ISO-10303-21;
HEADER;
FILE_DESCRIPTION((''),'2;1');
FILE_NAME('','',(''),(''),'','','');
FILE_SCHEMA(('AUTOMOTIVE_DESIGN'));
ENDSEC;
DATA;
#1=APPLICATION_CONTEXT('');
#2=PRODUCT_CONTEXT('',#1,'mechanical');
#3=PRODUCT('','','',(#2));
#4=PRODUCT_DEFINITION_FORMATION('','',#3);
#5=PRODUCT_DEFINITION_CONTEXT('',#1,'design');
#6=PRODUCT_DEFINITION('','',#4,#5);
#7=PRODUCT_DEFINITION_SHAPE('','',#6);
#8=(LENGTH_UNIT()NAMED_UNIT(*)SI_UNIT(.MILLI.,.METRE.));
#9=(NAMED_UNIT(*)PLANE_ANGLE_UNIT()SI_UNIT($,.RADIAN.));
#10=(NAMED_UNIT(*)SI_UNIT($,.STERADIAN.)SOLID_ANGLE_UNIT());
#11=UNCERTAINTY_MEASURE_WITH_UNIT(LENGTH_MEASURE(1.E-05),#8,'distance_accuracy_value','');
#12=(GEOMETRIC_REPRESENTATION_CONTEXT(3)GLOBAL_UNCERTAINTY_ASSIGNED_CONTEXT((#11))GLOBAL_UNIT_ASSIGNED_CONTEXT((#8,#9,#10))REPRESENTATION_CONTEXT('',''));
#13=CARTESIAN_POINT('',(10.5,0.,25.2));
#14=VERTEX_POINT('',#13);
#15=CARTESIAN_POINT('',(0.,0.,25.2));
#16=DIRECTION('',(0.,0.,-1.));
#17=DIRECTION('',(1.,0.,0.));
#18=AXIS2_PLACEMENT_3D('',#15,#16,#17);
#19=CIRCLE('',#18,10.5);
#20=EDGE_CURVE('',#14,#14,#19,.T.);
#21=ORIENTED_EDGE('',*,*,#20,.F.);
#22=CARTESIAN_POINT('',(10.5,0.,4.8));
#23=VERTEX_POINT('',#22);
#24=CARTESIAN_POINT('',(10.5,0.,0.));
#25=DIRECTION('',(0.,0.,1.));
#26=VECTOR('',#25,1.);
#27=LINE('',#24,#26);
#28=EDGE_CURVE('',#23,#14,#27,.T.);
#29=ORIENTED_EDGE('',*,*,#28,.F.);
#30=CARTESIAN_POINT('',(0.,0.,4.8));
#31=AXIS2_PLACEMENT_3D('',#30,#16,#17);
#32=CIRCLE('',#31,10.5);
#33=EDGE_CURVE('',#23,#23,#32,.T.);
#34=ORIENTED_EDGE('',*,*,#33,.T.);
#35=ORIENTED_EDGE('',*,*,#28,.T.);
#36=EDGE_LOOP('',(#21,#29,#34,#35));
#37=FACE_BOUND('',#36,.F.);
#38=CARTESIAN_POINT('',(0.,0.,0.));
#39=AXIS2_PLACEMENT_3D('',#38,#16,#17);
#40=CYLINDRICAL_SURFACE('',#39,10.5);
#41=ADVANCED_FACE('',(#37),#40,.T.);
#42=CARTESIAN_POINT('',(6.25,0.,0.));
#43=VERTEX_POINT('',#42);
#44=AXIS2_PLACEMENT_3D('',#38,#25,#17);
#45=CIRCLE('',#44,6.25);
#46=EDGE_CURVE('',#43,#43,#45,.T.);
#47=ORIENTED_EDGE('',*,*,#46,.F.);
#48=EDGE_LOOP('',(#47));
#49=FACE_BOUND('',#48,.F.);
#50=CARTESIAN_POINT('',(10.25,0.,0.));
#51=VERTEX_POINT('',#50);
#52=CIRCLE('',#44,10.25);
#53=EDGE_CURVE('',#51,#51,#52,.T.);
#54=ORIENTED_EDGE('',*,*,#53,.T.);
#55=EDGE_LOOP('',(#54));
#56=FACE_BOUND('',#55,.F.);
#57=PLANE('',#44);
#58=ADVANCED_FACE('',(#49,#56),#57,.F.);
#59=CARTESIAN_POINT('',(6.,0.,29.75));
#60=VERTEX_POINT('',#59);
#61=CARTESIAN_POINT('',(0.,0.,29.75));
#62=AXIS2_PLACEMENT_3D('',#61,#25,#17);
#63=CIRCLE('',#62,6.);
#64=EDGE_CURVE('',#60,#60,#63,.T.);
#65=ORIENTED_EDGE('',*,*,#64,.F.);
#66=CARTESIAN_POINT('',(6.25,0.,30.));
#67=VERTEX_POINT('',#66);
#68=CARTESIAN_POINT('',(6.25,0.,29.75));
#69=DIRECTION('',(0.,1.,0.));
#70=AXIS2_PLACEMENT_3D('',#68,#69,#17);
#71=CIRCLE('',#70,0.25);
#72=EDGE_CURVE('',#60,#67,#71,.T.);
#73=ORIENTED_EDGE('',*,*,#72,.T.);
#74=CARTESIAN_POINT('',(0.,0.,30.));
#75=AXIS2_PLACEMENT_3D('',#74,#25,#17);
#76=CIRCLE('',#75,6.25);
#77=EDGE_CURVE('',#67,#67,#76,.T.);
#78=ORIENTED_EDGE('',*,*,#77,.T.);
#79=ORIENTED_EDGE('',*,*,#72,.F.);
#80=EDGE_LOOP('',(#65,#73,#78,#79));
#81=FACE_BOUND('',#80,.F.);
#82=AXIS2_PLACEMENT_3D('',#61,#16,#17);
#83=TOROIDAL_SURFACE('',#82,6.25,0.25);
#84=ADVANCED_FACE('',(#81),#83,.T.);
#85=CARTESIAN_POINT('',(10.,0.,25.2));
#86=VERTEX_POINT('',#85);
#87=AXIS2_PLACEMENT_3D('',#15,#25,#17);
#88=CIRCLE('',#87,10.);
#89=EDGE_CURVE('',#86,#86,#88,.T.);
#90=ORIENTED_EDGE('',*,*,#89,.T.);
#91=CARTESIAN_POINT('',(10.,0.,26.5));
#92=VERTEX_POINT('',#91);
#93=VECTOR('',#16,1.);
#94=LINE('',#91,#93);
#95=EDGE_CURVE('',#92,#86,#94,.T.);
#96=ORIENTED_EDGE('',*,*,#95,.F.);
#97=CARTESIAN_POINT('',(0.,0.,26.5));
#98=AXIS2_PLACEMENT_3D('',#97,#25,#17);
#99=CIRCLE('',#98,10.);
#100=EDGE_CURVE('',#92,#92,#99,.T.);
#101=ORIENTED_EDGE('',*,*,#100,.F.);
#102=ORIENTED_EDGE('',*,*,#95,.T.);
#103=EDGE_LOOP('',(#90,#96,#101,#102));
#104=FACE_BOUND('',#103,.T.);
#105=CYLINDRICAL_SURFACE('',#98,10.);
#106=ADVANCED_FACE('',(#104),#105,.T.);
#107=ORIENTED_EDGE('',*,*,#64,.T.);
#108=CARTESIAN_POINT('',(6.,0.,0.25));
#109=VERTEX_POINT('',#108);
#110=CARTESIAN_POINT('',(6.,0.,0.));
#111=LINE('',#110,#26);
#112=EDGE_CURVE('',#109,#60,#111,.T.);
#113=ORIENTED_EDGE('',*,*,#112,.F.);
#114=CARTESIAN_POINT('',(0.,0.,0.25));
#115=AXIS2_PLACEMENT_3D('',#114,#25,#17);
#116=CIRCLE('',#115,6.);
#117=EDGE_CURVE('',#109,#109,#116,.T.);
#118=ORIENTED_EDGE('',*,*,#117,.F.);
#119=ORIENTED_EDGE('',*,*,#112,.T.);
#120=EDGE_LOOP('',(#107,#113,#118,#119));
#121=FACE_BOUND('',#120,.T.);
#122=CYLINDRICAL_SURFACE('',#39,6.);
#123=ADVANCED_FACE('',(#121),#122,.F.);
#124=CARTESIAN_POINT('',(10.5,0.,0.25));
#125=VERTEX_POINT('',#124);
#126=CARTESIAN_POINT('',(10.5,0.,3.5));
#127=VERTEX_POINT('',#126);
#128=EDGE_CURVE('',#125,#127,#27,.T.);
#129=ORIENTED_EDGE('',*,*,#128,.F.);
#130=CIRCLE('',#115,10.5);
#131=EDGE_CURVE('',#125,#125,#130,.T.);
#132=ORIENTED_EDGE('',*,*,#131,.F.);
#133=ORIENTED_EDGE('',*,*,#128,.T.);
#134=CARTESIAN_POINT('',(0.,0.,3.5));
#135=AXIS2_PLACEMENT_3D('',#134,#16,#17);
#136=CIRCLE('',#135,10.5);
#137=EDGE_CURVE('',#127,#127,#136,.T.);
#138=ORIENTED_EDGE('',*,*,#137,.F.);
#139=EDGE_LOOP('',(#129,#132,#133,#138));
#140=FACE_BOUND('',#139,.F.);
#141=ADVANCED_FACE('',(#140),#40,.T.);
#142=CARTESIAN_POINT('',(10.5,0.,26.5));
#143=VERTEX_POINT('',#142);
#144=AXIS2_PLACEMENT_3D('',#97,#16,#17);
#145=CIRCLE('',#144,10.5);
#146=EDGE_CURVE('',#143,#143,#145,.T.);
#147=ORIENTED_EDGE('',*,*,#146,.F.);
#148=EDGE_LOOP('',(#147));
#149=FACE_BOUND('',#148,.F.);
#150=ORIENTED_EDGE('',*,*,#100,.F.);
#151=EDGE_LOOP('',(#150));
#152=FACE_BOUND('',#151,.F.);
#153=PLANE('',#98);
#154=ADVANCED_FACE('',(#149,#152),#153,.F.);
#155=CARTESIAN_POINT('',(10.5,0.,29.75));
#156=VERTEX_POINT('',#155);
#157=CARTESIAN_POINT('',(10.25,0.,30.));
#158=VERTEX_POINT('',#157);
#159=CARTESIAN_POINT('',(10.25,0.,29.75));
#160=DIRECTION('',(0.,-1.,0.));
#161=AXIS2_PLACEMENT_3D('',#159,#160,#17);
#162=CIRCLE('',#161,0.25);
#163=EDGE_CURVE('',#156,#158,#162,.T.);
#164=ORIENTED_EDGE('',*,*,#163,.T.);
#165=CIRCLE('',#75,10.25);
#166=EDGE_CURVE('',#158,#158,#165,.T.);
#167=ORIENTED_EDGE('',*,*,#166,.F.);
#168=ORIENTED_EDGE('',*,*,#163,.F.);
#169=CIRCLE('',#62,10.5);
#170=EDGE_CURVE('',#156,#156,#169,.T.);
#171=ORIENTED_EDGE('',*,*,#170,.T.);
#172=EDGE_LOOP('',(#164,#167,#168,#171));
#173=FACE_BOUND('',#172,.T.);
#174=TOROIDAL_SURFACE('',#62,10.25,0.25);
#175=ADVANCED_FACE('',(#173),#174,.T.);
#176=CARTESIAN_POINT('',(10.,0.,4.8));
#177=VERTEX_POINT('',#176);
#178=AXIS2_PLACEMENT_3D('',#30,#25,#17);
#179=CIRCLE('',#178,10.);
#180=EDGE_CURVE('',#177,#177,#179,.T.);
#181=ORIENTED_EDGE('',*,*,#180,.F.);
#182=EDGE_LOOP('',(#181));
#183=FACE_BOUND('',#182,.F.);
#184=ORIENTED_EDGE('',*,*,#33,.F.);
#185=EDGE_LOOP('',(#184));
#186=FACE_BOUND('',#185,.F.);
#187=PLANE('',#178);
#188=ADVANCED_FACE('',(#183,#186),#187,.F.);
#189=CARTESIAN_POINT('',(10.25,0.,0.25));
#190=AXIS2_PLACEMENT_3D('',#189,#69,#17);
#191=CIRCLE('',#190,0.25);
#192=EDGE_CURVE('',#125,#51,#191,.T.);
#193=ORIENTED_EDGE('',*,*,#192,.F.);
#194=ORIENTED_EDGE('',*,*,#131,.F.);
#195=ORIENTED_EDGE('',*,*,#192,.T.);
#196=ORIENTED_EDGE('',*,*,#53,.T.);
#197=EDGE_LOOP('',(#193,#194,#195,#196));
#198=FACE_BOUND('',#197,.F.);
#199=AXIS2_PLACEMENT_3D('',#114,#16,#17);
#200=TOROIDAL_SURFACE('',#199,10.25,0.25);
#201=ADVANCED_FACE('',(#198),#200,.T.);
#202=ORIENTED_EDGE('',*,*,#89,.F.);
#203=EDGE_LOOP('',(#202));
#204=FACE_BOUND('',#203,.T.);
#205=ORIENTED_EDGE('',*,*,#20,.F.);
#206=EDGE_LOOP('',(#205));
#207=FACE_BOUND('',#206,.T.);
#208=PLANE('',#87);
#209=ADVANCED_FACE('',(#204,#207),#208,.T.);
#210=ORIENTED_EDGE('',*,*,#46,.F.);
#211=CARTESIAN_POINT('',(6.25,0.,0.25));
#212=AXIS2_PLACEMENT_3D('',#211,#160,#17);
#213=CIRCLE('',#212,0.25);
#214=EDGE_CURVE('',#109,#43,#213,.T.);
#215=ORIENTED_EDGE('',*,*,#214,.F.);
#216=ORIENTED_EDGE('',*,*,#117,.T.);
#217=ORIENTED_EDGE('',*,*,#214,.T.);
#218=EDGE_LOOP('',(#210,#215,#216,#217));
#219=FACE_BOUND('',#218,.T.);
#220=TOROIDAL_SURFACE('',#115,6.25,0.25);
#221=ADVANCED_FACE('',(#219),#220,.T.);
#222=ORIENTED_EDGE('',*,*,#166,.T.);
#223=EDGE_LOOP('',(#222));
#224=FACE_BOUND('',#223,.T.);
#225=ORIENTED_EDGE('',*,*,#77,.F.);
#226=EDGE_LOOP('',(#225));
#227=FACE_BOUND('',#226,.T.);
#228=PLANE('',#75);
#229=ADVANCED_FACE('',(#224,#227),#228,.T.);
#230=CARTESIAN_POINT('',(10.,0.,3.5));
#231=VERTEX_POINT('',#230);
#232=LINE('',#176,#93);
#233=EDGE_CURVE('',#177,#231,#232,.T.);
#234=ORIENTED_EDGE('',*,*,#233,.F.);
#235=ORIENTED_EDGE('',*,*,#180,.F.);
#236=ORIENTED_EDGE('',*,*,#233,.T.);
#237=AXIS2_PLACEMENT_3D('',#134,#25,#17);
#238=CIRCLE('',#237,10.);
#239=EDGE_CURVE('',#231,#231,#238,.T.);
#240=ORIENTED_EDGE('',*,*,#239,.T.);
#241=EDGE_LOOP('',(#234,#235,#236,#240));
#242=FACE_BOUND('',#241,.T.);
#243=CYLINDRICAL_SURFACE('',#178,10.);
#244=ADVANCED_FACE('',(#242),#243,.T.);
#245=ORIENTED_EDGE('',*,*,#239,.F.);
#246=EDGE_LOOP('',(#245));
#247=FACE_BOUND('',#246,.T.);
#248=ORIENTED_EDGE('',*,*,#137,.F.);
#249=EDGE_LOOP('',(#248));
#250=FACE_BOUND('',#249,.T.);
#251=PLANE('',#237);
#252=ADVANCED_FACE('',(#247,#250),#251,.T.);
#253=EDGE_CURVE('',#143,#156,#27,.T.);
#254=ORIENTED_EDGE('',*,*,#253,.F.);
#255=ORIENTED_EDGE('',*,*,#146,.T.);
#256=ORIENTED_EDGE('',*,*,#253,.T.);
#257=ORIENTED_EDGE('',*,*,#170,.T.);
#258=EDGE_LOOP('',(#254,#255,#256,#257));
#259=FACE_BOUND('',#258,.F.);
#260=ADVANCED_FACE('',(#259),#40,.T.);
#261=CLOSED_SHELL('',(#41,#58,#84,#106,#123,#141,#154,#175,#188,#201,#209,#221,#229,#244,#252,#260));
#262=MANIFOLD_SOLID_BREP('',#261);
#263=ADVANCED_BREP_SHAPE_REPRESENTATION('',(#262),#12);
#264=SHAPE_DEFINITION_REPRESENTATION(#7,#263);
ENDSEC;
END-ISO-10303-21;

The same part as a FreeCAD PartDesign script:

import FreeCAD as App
import Part
import Sketcher


def edges_at(feature, points):
    """Names of the edges that pass closest to the given points."""
    edges = feature.Shape.Edges
    near = lambda p: min(range(len(edges)), key=lambda i: edges[i].distToShape(Part.Vertex(*p))[0])
    return sorted({f"Edge{near(p) + 1}" for p in points})

doc = App.newDocument("Part")
params = doc.addObject("Spreadsheet::Sheet", "Params")
for row, (alias, value) in enumerate([
    ("sketch1_diameter", "21 mm"),
    ("sketch1_diameter2", "12 mm"),
    ("pad1_length", "30 mm"),
    ("fillet_radius", "0.25 mm"),
    ("sketch2_diameter", "32 mm"),
    ("sketch2_diameter2", "20 mm"),
    ("pocket1_length", "1.3 mm"),
    ("sketch3_diameter", "32 mm"),
    ("sketch3_diameter2", "20 mm"),
    ("pocket2_length", "1.3 mm"),
], start=1):
    params.set(f"A{row}", alias)
    params.set(f"B{row}", "=" + value)
    params.setAlias(f"B{row}", alias)

body = doc.addObject("PartDesign::Body", "Body")

sketch1 = body.newObject("Sketcher::SketchObject", "Sketch")
sketch1.AttachmentSupport = (doc.getObject("XY_Plane"), [""])
sketch1.MapMode = "FlatFace"
sketch1.addGeometry([
    Part.Circle(App.Vector(0, 0, 0), App.Vector(0, 0, 1), 10),
    Part.Circle(App.Vector(0, 0, 0), App.Vector(0, 0, 1), 6),
], False)
sketch1.addConstraint([
    Sketcher.Constraint("Coincident", 0, 3, -1, 1),
    Sketcher.Constraint("Coincident", 1, 3, -1, 1),
    Sketcher.Constraint("Diameter", 0, 21.0),
    Sketcher.Constraint("Diameter", 1, 12.0),
])
sketch1.setExpression("Constraints[2]", "Params.sketch1_diameter")
sketch1.setExpression("Constraints[3]", "Params.sketch1_diameter2")
pad1 = body.newObject("PartDesign::Pad", "Pad")
pad1.Profile = sketch1
pad1.setExpression("Length", "Params.pad1_length")
doc.recompute()

fillet = body.newObject("PartDesign::Fillet", "Fillet")
fillet.Base = (pad1, edges_at(pad1, [
    (-10.5, 0, 30),
    (-6, 0, 30),
    (-10.5, 0, 0),
    (-6, 0, 0),
]))
fillet.setExpression("Radius", "Params.fillet_radius")

sketch2 = body.newObject("Sketcher::SketchObject", "Sketch001")
sketch2.AttachmentSupport = (doc.getObject("XY_Plane"), [""])
sketch2.MapMode = "FlatFace"
sketch2.AttachmentOffset = App.Placement(App.Vector(0, 0, 26.5), App.Rotation())
sketch2.addGeometry([
    Part.Circle(App.Vector(0, 0, 0), App.Vector(0, 0, 1), 16),
    Part.Circle(App.Vector(0, 0, 0), App.Vector(0, 0, 1), 10),
], False)
sketch2.addConstraint([
    Sketcher.Constraint("Coincident", 0, 3, -1, 1),
    Sketcher.Constraint("Coincident", 1, 3, -1, 1),
    Sketcher.Constraint("Diameter", 0, 32.0),
    Sketcher.Constraint("Diameter", 1, 20.0),
])
sketch2.setExpression("Constraints[2]", "Params.sketch2_diameter")
sketch2.setExpression("Constraints[3]", "Params.sketch2_diameter2")
pocket1 = body.newObject("PartDesign::Pocket", "Pocket")
pocket1.Profile = sketch2
pocket1.setExpression("Length", "Params.pocket1_length")

sketch3 = body.newObject("Sketcher::SketchObject", "Sketch002")
sketch3.AttachmentSupport = (doc.getObject("XY_Plane"), [""])
sketch3.MapMode = "FlatFace"
sketch3.AttachmentOffset = App.Placement(App.Vector(0, 0, 4.8), App.Rotation())
sketch3.addGeometry([
    Part.Circle(App.Vector(0, 0, 0), App.Vector(0, 0, 1), 16),
    Part.Circle(App.Vector(0, 0, 0), App.Vector(0, 0, 1), 10),
], False)
sketch3.addConstraint([
    Sketcher.Constraint("Coincident", 0, 3, -1, 1),
    Sketcher.Constraint("Coincident", 1, 3, -1, 1),
    Sketcher.Constraint("Diameter", 0, 32.0),
    Sketcher.Constraint("Diameter", 1, 20.0),
])
sketch3.setExpression("Constraints[2]", "Params.sketch3_diameter")
sketch3.setExpression("Constraints[3]", "Params.sketch3_diameter2")
pocket2 = body.newObject("PartDesign::Pocket", "Pocket001")
pocket2.Profile = sketch3
pocket2.setExpression("Length", "Params.pocket2_length")

doc.recompute()
